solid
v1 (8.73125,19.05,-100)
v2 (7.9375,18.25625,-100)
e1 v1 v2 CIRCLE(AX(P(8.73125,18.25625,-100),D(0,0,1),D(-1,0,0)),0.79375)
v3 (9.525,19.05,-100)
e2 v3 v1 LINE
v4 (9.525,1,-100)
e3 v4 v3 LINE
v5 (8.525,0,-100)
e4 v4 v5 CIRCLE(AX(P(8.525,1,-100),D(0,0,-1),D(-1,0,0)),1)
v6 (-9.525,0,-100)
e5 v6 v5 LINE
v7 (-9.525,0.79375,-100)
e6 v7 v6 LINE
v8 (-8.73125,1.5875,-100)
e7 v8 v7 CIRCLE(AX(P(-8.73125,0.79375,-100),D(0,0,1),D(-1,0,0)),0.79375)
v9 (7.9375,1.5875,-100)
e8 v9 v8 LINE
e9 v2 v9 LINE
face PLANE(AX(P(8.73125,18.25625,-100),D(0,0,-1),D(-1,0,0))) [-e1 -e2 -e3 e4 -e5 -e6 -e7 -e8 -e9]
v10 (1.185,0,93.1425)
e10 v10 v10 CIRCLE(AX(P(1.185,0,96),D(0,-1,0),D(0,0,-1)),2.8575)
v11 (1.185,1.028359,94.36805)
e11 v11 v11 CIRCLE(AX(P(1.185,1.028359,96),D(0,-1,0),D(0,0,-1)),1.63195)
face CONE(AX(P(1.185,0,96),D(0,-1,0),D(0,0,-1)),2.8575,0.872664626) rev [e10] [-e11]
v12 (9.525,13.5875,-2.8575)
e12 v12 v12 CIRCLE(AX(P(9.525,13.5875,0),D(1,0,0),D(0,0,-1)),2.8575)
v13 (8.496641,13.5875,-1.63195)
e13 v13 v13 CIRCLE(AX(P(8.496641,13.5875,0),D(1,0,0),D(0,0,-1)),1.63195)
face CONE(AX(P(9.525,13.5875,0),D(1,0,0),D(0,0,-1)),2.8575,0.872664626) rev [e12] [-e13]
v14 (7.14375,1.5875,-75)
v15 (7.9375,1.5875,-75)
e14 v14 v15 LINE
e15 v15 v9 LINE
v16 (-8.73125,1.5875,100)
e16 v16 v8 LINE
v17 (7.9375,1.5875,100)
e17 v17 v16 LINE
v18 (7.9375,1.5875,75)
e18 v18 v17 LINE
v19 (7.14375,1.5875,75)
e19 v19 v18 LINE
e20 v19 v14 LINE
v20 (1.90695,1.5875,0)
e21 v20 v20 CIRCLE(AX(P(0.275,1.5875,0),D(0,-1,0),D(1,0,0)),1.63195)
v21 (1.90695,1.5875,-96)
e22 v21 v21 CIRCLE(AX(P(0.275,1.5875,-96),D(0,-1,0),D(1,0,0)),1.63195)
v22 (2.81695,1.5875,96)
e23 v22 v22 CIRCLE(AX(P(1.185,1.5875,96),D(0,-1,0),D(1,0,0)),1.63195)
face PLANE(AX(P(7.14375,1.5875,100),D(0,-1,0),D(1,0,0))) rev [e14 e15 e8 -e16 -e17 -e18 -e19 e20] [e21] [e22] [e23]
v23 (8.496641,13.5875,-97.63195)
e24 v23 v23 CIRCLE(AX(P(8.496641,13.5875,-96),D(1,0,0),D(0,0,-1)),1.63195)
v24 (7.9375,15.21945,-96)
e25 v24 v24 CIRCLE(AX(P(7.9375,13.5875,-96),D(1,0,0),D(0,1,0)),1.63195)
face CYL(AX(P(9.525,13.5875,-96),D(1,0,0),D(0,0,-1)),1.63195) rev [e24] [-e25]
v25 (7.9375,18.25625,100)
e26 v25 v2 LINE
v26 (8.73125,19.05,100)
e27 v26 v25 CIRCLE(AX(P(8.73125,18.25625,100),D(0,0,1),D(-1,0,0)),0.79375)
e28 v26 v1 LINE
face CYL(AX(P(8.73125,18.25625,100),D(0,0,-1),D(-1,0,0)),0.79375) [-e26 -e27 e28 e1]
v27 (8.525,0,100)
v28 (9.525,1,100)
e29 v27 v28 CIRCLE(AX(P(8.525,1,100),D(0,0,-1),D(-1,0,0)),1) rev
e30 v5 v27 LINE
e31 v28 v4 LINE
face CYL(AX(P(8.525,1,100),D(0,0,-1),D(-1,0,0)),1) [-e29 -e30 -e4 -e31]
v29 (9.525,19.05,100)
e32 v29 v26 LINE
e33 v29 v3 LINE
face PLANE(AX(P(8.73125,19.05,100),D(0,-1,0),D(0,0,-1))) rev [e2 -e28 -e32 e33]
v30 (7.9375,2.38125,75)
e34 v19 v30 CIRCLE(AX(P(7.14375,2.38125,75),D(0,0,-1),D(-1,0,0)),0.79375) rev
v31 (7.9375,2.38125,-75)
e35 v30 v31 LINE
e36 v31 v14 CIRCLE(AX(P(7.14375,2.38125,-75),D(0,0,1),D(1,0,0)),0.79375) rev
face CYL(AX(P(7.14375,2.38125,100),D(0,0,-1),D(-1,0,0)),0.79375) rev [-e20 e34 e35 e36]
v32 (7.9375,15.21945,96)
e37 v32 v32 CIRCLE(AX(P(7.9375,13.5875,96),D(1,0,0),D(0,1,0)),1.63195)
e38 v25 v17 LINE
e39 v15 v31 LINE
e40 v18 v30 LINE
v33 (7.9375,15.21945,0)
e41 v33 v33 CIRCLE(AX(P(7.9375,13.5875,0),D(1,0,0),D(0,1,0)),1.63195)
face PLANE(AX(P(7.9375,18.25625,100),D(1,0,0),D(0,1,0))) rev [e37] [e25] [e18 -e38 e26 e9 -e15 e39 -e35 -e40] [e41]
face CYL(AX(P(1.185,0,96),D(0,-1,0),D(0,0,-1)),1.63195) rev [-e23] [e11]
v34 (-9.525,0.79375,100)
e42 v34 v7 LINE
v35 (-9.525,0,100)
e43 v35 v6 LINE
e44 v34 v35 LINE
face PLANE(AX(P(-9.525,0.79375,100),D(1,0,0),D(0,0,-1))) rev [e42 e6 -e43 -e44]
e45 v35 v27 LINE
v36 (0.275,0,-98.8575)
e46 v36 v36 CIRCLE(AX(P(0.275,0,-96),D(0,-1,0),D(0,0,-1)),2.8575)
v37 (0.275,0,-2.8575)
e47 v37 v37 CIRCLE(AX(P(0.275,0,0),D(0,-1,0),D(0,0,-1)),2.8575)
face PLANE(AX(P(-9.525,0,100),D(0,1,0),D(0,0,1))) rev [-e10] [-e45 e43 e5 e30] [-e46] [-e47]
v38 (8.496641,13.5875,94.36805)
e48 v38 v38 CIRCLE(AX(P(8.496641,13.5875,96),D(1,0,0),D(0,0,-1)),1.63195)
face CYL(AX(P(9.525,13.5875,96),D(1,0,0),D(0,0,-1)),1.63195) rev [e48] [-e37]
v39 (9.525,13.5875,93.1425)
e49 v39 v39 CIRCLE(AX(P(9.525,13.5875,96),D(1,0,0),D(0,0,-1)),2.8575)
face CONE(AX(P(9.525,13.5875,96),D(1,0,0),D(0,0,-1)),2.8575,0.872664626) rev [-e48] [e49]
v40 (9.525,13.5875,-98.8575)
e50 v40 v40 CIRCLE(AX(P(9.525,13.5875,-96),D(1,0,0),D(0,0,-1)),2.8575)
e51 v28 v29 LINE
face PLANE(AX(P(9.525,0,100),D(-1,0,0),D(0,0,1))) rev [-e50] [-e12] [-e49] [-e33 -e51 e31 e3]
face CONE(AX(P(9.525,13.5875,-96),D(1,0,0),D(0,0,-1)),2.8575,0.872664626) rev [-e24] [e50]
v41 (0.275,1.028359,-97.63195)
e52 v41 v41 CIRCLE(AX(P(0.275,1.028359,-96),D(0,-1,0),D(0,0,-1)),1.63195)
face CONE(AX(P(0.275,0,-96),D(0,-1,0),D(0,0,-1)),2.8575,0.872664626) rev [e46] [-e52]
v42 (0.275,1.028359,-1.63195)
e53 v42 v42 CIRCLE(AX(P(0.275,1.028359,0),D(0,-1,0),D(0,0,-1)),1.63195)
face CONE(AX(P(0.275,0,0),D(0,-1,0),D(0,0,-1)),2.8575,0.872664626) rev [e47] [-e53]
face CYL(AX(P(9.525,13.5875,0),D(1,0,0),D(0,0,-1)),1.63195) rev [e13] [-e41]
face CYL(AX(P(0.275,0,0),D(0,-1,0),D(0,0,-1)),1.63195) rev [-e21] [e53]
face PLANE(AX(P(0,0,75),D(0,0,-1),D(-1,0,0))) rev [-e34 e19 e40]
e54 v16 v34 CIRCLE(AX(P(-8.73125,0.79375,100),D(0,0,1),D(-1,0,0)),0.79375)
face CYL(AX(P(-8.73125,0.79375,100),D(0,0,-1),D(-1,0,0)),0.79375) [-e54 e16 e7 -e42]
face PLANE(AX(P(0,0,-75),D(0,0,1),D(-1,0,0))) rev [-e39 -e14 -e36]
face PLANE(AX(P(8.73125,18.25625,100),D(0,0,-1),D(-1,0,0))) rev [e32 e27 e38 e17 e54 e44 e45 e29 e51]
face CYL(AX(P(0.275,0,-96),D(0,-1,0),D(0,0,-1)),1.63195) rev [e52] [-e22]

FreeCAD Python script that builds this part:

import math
import FreeCAD as App
import Part
import Sketcher
Q = App.Units.Quantity


def edges_at(feature, points):
    """Names of the edges that pass closest to the given points."""
    edges = feature.Shape.Edges
    near = lambda p: min(range(len(edges)), key=lambda i: edges[i].distToShape(Part.Vertex(*p))[0])
    return sorted({f"Edge{near(p) + 1}" for p in points})


def add_polygon(sketch, points):
    """Adds a closed chain of lines whose ends are joined by coincident constraints."""
    first, n = sketch.GeometryCount, len(points)
    for a, b in zip(points, points[1:] + points[:1]):
        sketch.addGeometry(Part.LineSegment(App.Vector(*a, 0), App.Vector(*b, 0)), False)
    for i in range(n):
        sketch.addConstraint(Sketcher.Constraint("Coincident", first + i, 2, first + (i + 1) % n, 1))

doc = App.newDocument("Part")
body = doc.addObject("PartDesign::Body", "Body")

sketch1 = body.newObject("Sketcher::SketchObject", "Sketch")
sketch1.AttachmentSupport = (doc.getObject("XY_Plane"), [""])
sketch1.MapMode = "FlatFace"
sketch1.addGeometry(Part.LineSegment(App.Vector(-9.5, 0, 0), App.Vector(9.5, 0, 0)), False)
sketch1.addGeometry(Part.LineSegment(App.Vector(9.5, 0, 0), App.Vector(9.5, 19.1, 0)), False)
sketch1.addGeometry(Part.LineSegment(App.Vector(9.5, 19.1, 0), App.Vector(8.7, 19.1, 0)), False)
sketch1.addGeometry(Part.ArcOfCircle(Part.Circle(App.Vector(8.7, 18.3, 0), App.Vector(0, 0, 1), 0.8), math.radians(90), math.radians(180)), False)
sketch1.addGeometry(Part.LineSegment(App.Vector(7.9, 18.3, 0), App.Vector(7.9, 2.4, 0)), False)
sketch1.addGeometry(Part.ArcOfCircle(Part.Circle(App.Vector(7.1, 2.4, 0), App.Vector(0, 0, 1), 0.8), math.radians(-90), math.radians(0)), False)
sketch1.addGeometry(Part.LineSegment(App.Vector(7.1, 1.6, 0), App.Vector(-8.7, 1.6, 0)), False)
sketch1.addGeometry(Part.ArcOfCircle(Part.Circle(App.Vector(-8.7, 0.8, 0), App.Vector(0, 0, 1), 0.8), math.radians(90), math.radians(180)), False)
sketch1.addGeometry(Part.LineSegment(App.Vector(-9.5, 0.8, 0), App.Vector(-9.5, 0, 0)), False)
sketch1.addConstraint(Sketcher.Constraint("Coincident", 0, 2, 1, 1))
sketch1.addConstraint(Sketcher.Constraint("Coincident", 1, 2, 2, 1))
sketch1.addConstraint(Sketcher.Constraint("Tangent", 2, 2, 3, 1))
sketch1.addConstraint(Sketcher.Constraint("Tangent", 3, 2, 4, 1))
sketch1.addConstraint(Sketcher.Constraint("Tangent", 4, 2, 5, 2))
sketch1.addConstraint(Sketcher.Constraint("Tangent", 5, 1, 6, 1))
sketch1.addConstraint(Sketcher.Constraint("Tangent", 6, 2, 7, 1))
sketch1.addConstraint(Sketcher.Constraint("Tangent", 7, 2, 8, 1))
sketch1.addConstraint(Sketcher.Constraint("Coincident", 8, 2, 0, 1))
sketch1.addConstraint(Sketcher.Constraint("Horizontal", 0))
sketch1.addConstraint(Sketcher.Constraint("Vertical", 1))
sketch1.addConstraint(Sketcher.Constraint("Horizontal", 2))
sketch1.addConstraint(Sketcher.Constraint("Vertical", 4))
sketch1.addConstraint(Sketcher.Constraint("Horizontal", 6))
sketch1.addConstraint(Sketcher.Constraint("Vertical", 8))
sketch1.addConstraint(Sketcher.Constraint("Equal", 3, 5))
sketch1.addConstraint(Sketcher.Constraint("Equal", 5, 7))
sketch1.addConstraint(Sketcher.Constraint("Symmetric", 0, 2, 8, 2, -1, 1))
sketch1.addConstraint(Sketcher.Constraint("Equal", 0, 1))
sketch1.addConstraint(Sketcher.Constraint("Equal", 6, 4))
sketch1.addConstraint(Sketcher.Constraint("DistanceX", 0, 1, 0, 2, Q("19.05 mm")))
sketch1.addConstraint(Sketcher.Constraint("DistanceX", 6, 2, 6, 1, Q("15.875 mm")))
sketch1.addConstraint(Sketcher.Constraint("Radius", 3, Q("0.79375 mm")))
pad1 = body.newObject("PartDesign::Pad", "Pad")
pad1.Profile = sketch1
pad1.Length = 200
pad1.Midplane = True

sketch2 = body.newObject("Sketcher::SketchObject", "Sketch001")
sketch2.AttachmentSupport = (doc.getObject("XZ_Plane"), [""])
sketch2.MapMode = "FlatFace"
sketch2.addGeometry(Part.Circle(App.Vector(1.2, 96, 0), App.Vector(0, 0, 1), 1.6), False)
sketch2.addGeometry(Part.Circle(App.Vector(0.3, -96, 0), App.Vector(0, 0, 1), 1.6), False)
sketch2.addConstraint(Sketcher.Constraint("Equal", 0, 1))
sketch2.addConstraint(Sketcher.Constraint("DistanceY", -1, 1, 0, 3, Q("96 mm")))
sketch2.addConstraint(Sketcher.Constraint("DistanceY", 1, 3, -1, 1, Q("96 mm")))
sketch2.addConstraint(Sketcher.Constraint("Diameter", 0, Q("3.2639 mm")))
sketch2.addConstraint(Sketcher.Constraint("DistanceX", 1, 3, 0, 3, Q("0.91 mm")))
sketch2.addConstraint(Sketcher.Constraint("DistanceX", -1, 1, 0, 3, Q("1.185 mm")))
doc.recompute()
hole = body.newObject("PartDesign::Hole", "Hole")
hole.Profile = sketch2
hole.ThreadType = "None"
hole.Diameter = 3.2639
hole.DepthType = "ThroughAll"
hole.HoleCutType = "Countersink"
hole.HoleCutDiameter = 5.715
hole.HoleCutCountersinkAngle = 100

sketch3 = body.newObject("Sketcher::SketchObject", "Sketch002")
sketch3.AttachmentSupport = (doc.getObject("YZ_Plane"), [""])
sketch3.MapMode = "FlatFace"
sketch3.AttachmentOffset = App.Placement(App.Vector(0, 0, 9.525), App.Rotation())
sketch3.addGeometry(Part.Circle(App.Vector(13.6, 96, 0), App.Vector(0, 0, 1), 1.6), False)
sketch3.addGeometry(Part.Circle(App.Vector(13.6, -96, 0), App.Vector(0, 0, 1), 1.6), False)
sketch3.addConstraint(Sketcher.Constraint("Equal", 0, 1))
sketch3.addConstraint(Sketcher.Constraint("Symmetric", 0, 3, 1, 3, -1))
sketch3.addConstraint(Sketcher.Constraint("DistanceY", -1, 1, 0, 3, Q("96 mm")))
sketch3.addConstraint(Sketcher.Constraint("Diameter", 0, Q("3.2639 mm")))
sketch3.addConstraint(Sketcher.Constraint("DistanceX", -1, 1, 0, 3, Q("13.5875 mm")))
doc.recompute()
hole2 = body.newObject("PartDesign::Hole", "Hole001")
hole2.Profile = sketch3
hole2.ThreadType = "None"
hole2.Diameter = 3.2639
hole2.DepthType = "ThroughAll"
hole2.HoleCutType = "Countersink"
hole2.HoleCutDiameter = 5.715
hole2.HoleCutCountersinkAngle = 100
doc.recompute()

fillet = body.newObject("PartDesign::Fillet", "Fillet")
fillet.Base = (hole2, edges_at(hole2, [(9.525, 0, 0)]))
fillet.Radius = 1

sketch4 = body.newObject("Sketcher::SketchObject", "Sketch003")
sketch4.AttachmentSupport = (doc.getObject("XZ_Plane"), [""])
sketch4.MapMode = "FlatFace"
sketch4.addGeometry(Part.Circle(App.Vector(0.3, 0, 0), App.Vector(0, 0, 1), 1.6), False)
sketch4.addConstraint(Sketcher.Constraint("PointOnObject", 0, 3, -1))
sketch4.addConstraint(Sketcher.Constraint("Diameter", 0, Q("3.2639 mm")))
sketch4.addConstraint(Sketcher.Constraint("DistanceX", -1, 1, 0, 3, Q("0.275 mm")))
doc.recompute()
hole3 = body.newObject("PartDesign::Hole", "Hole002")
hole3.Profile = sketch4
hole3.ThreadType = "None"
hole3.Diameter = 3.2639
hole3.DepthType = "ThroughAll"
hole3.HoleCutType = "Countersink"
hole3.HoleCutDiameter = 5.715
hole3.HoleCutCountersinkAngle = 100

sketch5 = body.newObject("Sketcher::SketchObject", "Sketch004")
sketch5.AttachmentSupport = (doc.getObject("YZ_Plane"), [""])
sketch5.MapMode = "FlatFace"
sketch5.AttachmentOffset = App.Placement(App.Vector(0, 0, 9.525), App.Rotation())
sketch5.addGeometry(Part.Circle(App.Vector(13.6, 0, 0), App.Vector(0, 0, 1), 1.6), False)
sketch5.addConstraint(Sketcher.Constraint("PointOnObject", 0, 3, -1))
sketch5.addConstraint(Sketcher.Constraint("Diameter", 0, Q("3.2639 mm")))
sketch5.addConstraint(Sketcher.Constraint("DistanceX", -1, 1, 0, 3, Q("13.5875 mm")))
doc.recompute()
hole4 = body.newObject("PartDesign::Hole", "Hole003")
hole4.Profile = sketch5
hole4.ThreadType = "None"
hole4.Diameter = 3.2639
hole4.DepthType = "ThroughAll"
hole4.HoleCutType = "Countersink"
hole4.HoleCutDiameter = 5.715
hole4.HoleCutCountersinkAngle = 100

sketch6 = body.newObject("Sketcher::SketchObject", "Sketch005")
sketch6.AttachmentSupport = (doc.getObject("XY_Plane"), [""])
sketch6.MapMode = "FlatFace"
sketch6.AttachmentOffset = App.Placement(App.Vector(0, 0, 100), App.Rotation())
add_polygon(sketch6, [(3, 2), (8, 2), (8, 7)])
sketch6.addConstraint(Sketcher.Constraint("Horizontal", 0))
sketch6.addConstraint(Sketcher.Constraint("Vertical", 1))
sketch6.addConstraint(Sketcher.Constraint("Equal", 0, 1))
sketch6.addConstraint(Sketcher.Constraint("DistanceX", 0, 1, 0, 2, Q("5 mm")))
sketch6.addConstraint(Sketcher.Constraint("DistanceX", -1, 1, 0, 2, Q("7.9375 mm")))
sketch6.addConstraint(Sketcher.Constraint("DistanceY", -1, 1, 0, 2, Q("1.5875 mm")))
pocket1 = body.newObject("PartDesign::Pocket", "Pocket")
pocket1.Profile = sketch6
pocket1.Length = 25
doc.recompute()

mirrored = body.newObject("PartDesign::Mirrored", "Mirrored")
mirrored.Originals = [pocket1]
mirrored.MirrorPlane = (doc.getObject("XY_Plane"), [""])
body.Tip = mirrored

doc.recompute()
